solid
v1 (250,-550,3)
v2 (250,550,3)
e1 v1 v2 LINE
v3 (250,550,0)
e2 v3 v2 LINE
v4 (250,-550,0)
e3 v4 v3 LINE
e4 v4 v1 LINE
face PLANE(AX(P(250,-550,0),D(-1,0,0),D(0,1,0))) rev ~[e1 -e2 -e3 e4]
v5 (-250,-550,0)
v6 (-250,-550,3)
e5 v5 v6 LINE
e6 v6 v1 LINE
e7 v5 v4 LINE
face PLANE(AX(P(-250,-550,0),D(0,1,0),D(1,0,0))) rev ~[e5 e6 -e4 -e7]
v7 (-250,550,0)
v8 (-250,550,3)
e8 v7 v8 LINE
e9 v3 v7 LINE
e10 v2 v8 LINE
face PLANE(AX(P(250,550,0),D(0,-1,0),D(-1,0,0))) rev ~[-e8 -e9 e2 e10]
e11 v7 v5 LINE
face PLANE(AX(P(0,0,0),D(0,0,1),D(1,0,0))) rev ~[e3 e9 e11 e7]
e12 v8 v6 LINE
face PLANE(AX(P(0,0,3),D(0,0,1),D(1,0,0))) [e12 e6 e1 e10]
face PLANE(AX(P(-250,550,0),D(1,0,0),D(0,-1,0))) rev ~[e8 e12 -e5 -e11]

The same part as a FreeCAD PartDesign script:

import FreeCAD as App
import Part
import Sketcher
from FreeCAD import Vector
Q = App.Units.Quantity

doc = App.newDocument("Part")
body = doc.addObject("PartDesign::Body", "Body")

# Sketch on XY plane
sketch1 = body.newObject("Sketcher::SketchObject", "Sketch")
sketch1.AttachmentSupport = (doc.getObject("XY_Plane"), [""])
sketch1.MapMode = "FlatFace"
sketch1.addGeometry(Part.LineSegment(Vector(-250, 550, 0), Vector(-250, -550, 0)), False)
sketch1.addGeometry(Part.LineSegment(Vector(-250, -550, 0), Vector(250, -550, 0)), False)
sketch1.addGeometry(Part.LineSegment(Vector(250, -550, 0), Vector(250, 550, 0)), False)
sketch1.addGeometry(Part.LineSegment(Vector(250, 550, 0), Vector(-250, 550, 0)), False)
sketch1.addConstraint(Sketcher.Constraint("Coincident", 0, 2, 1, 1))
sketch1.addConstraint(Sketcher.Constraint("Coincident", 1, 2, 2, 1))
sketch1.addConstraint(Sketcher.Constraint("Coincident", 2, 2, 3, 1))
sketch1.addConstraint(Sketcher.Constraint("Coincident", 3, 2, 0, 1))
sketch1.addConstraint(Sketcher.Constraint("Vertical", 0))
sketch1.addConstraint(Sketcher.Constraint("Horizontal", 1))
sketch1.addConstraint(Sketcher.Constraint("Vertical", 2))
sketch1.addConstraint(Sketcher.Constraint("Horizontal", 3))
sketch1.addConstraint(Sketcher.Constraint("Symmetric", 0, 2, 2, 2, -1, 1))
sketch1.addConstraint(Sketcher.Constraint("DistanceX", 1, 1, 1, 2, Q("500 mm")))
sketch1.addConstraint(Sketcher.Constraint("DistanceY", 0, 2, 0, 1, Q("1100 mm")))
pad1 = body.newObject("PartDesign::Pad", "Pad")
pad1.Profile = sketch1
pad1.Length = 3

doc.recompute()
